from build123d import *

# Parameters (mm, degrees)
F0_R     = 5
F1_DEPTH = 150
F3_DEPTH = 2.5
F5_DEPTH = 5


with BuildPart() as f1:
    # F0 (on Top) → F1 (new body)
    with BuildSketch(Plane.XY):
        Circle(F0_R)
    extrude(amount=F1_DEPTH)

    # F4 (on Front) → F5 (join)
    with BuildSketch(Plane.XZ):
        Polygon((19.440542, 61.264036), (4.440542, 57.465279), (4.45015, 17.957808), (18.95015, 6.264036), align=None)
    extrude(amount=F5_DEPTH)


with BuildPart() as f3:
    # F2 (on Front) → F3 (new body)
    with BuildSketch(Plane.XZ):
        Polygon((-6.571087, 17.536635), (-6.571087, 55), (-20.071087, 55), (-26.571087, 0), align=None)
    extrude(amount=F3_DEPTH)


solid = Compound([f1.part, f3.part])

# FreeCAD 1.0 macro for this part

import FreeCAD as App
import Part
import Sketcher
Q = App.Units.Quantity


def add_polygon(sketch, points):
    """Adds a closed chain of lines whose ends are joined by coincident constraints."""
    first, n = sketch.GeometryCount, len(points)
    for a, b in zip(points, points[1:] + points[:1]):
        sketch.addGeometry(Part.LineSegment(App.Vector(*a, 0), App.Vector(*b, 0)), False)
    for i in range(n):
        sketch.addConstraint(Sketcher.Constraint("Coincident", first + i, 2, first + (i + 1) % n, 1))

doc = App.newDocument("Part")
body = doc.addObject("PartDesign::Body", "Body")

# Sketch on XY plane
sketch1 = body.newObject("Sketcher::SketchObject", "Sketch")
sketch1.AttachmentSupport = (doc.getObject("XY_Plane"), [""])
sketch1.MapMode = "FlatFace"
sketch1.addGeometry(Part.Circle(App.Vector(0, 0, 0), App.Vector(0, 0, 1), 5), False)
sketch1.addConstraint(Sketcher.Constraint("Coincident", 0, 3, -1, 1))
sketch1.addConstraint(Sketcher.Constraint("Diameter", 0, Q("10 mm")))
pad1 = body.newObject("PartDesign::Pad", "Pad")
pad1.Profile = sketch1
pad1.Length = 150

# Sketch on XZ plane
sketch2 = body.newObject("Sketcher::SketchObject", "Sketch001")
sketch2.AttachmentSupport = (doc.getObject("XZ_Plane"), [""])
sketch2.MapMode = "FlatFace"
add_polygon(sketch2, [(19.440542, 61.264036), (4.440542, 57.465279), (4.45015, 17.957808), (18.95015, 6.264036)])  # lines 0-3
sketch2.addConstraint(Sketcher.Constraint("DistanceX", 0, 2, 3, 2, Q("15 mm")))
sketch2.addConstraint(Sketcher.Constraint("DistanceY", 2, 2, 3, 2, Q("55 mm")))
sketch2.addConstraint(Sketcher.Constraint("DistanceX", 1, 2, 2, 2, Q("14.5 mm")))
sketch2.addConstraint(Sketcher.Constraint("DistanceX", -1, 1, 0, 2, Q("4.440542 mm")))
sketch2.addConstraint(Sketcher.Constraint("DistanceY", -1, 1, 0, 2, Q("57.465279 mm")))
sketch2.addConstraint(Sketcher.Constraint("DistanceX", -1, 1, 1, 2, Q("4.45015 mm")))
sketch2.addConstraint(Sketcher.Constraint("DistanceY", -1, 1, 1, 2, Q("17.957808 mm")))
sketch2.addConstraint(Sketcher.Constraint("DistanceY", 2, 2, 1, 2, Q("11.693772 mm")))
pad2 = body.newObject("PartDesign::Pad", "Pad001")
pad2.Profile = sketch2
pad2.Length = 5
body2 = doc.addObject("PartDesign::Body", "Body001")

# Sketch on XZ plane
sketch3 = body2.newObject("Sketcher::SketchObject", "Sketch002")
sketch3.AttachmentSupport = (doc.getObject("XZ_Plane001"), [""])
sketch3.MapMode = "FlatFace"
add_polygon(sketch3, [(-6.571087, 17.536635), (-6.571087, 55), (-20.071087, 55), (-26.571087, 0)])  # lines 0-3
sketch3.addConstraint(Sketcher.Constraint("Vertical", 0))
sketch3.addConstraint(Sketcher.Constraint("Horizontal", 1))
sketch3.addConstraint(Sketcher.Constraint("PointOnObject", 2, 2, -1))
sketch3.addConstraint(Sketcher.Constraint("DistanceX", 1, 2, 1, 1, Q("13.5 mm")))
sketch3.addConstraint(Sketcher.Constraint("DistanceY", -1, 1, 0, 2, Q("55 mm")))
sketch3.addConstraint(Sketcher.Constraint("DistanceX", 2, 2, 0, 2, Q("20 mm")))
sketch3.addConstraint(Sketcher.Constraint("DistanceY", 0, 1, 0, 2, Q("37.463365 mm")))
sketch3.addConstraint(Sketcher.Constraint("DistanceX", 0, 2, -1, 1, Q("6.571087 mm")))
pad3 = body2.newObject("PartDesign::Pad", "Pad002")
pad3.Profile = sketch3
pad3.Length = 2.5

doc.recompute()
